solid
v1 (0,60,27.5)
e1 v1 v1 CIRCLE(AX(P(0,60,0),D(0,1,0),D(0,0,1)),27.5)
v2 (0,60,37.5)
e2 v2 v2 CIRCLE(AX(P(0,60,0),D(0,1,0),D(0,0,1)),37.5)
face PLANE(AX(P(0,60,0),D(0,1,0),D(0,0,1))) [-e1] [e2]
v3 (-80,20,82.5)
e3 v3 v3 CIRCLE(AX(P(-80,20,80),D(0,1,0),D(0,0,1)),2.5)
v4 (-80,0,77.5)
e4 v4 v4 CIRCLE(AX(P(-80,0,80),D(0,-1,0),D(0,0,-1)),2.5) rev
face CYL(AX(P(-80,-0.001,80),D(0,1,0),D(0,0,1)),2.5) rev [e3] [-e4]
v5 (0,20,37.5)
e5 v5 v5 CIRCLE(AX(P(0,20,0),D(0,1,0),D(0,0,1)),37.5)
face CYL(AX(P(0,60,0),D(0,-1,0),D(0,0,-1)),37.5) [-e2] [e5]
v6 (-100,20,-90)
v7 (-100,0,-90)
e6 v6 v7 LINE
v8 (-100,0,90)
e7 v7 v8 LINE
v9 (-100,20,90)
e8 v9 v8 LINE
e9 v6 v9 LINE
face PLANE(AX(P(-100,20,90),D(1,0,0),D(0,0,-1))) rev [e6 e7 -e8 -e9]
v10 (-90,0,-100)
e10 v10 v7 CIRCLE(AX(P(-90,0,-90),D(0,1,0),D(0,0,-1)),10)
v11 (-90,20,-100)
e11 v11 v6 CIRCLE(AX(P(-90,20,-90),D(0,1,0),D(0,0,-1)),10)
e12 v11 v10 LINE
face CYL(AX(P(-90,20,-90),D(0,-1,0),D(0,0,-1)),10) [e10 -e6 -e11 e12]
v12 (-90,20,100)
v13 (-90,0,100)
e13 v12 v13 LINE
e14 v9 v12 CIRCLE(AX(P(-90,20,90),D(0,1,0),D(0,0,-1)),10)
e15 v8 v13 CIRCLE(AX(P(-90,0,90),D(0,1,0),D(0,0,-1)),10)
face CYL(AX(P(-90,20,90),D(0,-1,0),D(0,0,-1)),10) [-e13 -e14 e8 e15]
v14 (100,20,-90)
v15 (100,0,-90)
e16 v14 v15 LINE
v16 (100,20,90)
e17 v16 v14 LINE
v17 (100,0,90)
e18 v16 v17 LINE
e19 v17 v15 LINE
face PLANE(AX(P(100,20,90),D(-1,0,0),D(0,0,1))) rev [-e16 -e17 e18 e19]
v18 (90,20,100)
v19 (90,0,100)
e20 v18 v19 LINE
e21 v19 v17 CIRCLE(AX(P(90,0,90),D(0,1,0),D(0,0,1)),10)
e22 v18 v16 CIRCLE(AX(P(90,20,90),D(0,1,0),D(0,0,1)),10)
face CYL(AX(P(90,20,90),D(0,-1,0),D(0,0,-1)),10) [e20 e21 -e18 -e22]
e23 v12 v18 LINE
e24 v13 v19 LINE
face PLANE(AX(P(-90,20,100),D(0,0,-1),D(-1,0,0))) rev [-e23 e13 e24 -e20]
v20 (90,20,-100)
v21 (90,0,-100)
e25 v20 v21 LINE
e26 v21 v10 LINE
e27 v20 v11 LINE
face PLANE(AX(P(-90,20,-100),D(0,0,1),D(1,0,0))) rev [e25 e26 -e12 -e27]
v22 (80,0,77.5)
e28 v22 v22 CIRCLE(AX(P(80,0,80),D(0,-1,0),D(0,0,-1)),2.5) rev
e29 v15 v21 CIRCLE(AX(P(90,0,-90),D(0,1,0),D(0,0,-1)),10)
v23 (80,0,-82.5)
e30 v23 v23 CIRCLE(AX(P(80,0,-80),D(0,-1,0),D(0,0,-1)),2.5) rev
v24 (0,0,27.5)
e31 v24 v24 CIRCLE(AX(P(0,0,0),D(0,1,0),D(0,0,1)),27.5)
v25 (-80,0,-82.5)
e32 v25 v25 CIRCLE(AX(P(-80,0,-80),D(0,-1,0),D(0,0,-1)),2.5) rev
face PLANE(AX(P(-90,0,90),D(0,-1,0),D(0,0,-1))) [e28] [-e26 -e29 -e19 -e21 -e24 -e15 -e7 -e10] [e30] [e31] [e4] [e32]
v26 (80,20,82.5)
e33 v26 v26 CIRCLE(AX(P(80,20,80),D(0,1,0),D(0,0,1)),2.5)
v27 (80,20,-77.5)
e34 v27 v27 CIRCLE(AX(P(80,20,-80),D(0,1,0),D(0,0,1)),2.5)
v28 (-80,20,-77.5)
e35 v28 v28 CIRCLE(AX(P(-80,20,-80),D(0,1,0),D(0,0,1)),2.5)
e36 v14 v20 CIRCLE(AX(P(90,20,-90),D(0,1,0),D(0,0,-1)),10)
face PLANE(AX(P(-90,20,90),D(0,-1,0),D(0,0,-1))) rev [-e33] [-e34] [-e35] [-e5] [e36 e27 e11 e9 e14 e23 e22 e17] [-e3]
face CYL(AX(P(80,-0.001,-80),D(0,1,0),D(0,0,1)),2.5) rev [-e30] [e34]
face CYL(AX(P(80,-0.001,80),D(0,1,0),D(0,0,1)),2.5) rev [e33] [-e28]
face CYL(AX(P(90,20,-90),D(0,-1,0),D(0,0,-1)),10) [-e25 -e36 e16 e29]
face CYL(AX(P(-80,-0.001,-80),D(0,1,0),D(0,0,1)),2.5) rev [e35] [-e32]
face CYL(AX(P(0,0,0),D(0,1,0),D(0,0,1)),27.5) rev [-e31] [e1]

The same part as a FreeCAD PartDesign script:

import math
import FreeCAD as App
import Part
import Sketcher

V = App.Vector

doc = App.newDocument("Part")
params = doc.addObject("Spreadsheet::Sheet", "Params")
for row, (alias, value) in enumerate([
    ("sketch1_radius", "10 mm"),
    ("sketch1_width", "180 mm"),
    ("pad1_length", "20 mm"),
    ("sketch2_diameter", "75 mm"),
    ("pad2_length", "40 mm"),
    ("sketch3_diameter", "5 mm"),
    ("sketch4_diameter", "5 mm"),
    ("sketch5_diameter", "5 mm"),
    ("sketch6_diameter", "5 mm"),
    ("sketch7_diameter", "55 mm"),
], start=1):
    params.set(f"A{row}", alias)
    params.set(f"B{row}", "=" + value)
    params.setAlias(f"B{row}", alias)

body = doc.addObject("PartDesign::Body", "Body")

sketch1 = body.newObject("Sketcher::SketchObject", "Sketch")
sketch1.AttachmentSupport = (doc.getObject("XZ_Plane"), [""])
sketch1.MapMode = "FlatFace"
sketch1.addGeometry(Part.LineSegment(V(-90, 100, 0), V(90, 100, 0)), False)
sketch1.addGeometry(Part.ArcOfCircle(Part.Circle(V(90, 90, 0), V(0, 0, 1), 10), math.radians(0), math.radians(90)), False)
sketch1.addGeometry(Part.LineSegment(V(100, 90, 0), V(100, -90, 0)), False)
sketch1.addGeometry(Part.ArcOfCircle(Part.Circle(V(90, -90, 0), V(0, 0, 1), 10), math.radians(-90), math.radians(0)), False)
sketch1.addGeometry(Part.LineSegment(V(90, -100, 0), V(-90, -100, 0)), False)
sketch1.addGeometry(Part.ArcOfCircle(Part.Circle(V(-90, -90, 0), V(0, 0, 1), 10), math.radians(180), math.radians(270)), False)
sketch1.addGeometry(Part.LineSegment(V(-100, -90, 0), V(-100, 90, 0)), False)
sketch1.addGeometry(Part.ArcOfCircle(Part.Circle(V(-90, 90, 0), V(0, 0, 1), 10), math.radians(90), math.radians(180)), False)
sketch1.addConstraint(Sketcher.Constraint("Tangent", 0, 2, 1, 2))
sketch1.addConstraint(Sketcher.Constraint("Tangent", 1, 1, 2, 1))
sketch1.addConstraint(Sketcher.Constraint("Tangent", 2, 2, 3, 2))
sketch1.addConstraint(Sketcher.Constraint("Tangent", 3, 1, 4, 1))
sketch1.addConstraint(Sketcher.Constraint("Tangent", 4, 2, 5, 2))
sketch1.addConstraint(Sketcher.Constraint("Tangent", 5, 1, 6, 1))
sketch1.addConstraint(Sketcher.Constraint("Tangent", 6, 2, 7, 2))
sketch1.addConstraint(Sketcher.Constraint("Tangent", 7, 1, 0, 1))
sketch1.addConstraint(Sketcher.Constraint("Horizontal", 0))
sketch1.addConstraint(Sketcher.Constraint("Vertical", 2))
sketch1.addConstraint(Sketcher.Constraint("Horizontal", 4))
sketch1.addConstraint(Sketcher.Constraint("Vertical", 6))
sketch1.addConstraint(Sketcher.Constraint("Equal", 1, 3))
sketch1.addConstraint(Sketcher.Constraint("Equal", 3, 5))
sketch1.addConstraint(Sketcher.Constraint("Equal", 5, 7))
sketch1.addConstraint(Sketcher.Constraint("Symmetric", 1, 3, 5, 3, -1, 1))
sketch1.addConstraint(Sketcher.Constraint("Equal", 4, 2))
sketch1.addConstraint(Sketcher.Constraint("Radius", 1, 10.0))
sketch1.addConstraint(Sketcher.Constraint("DistanceX", 0, 1, 0, 2, 180.0))
sketch1.setExpression("Constraints[17]", "Params.sketch1_radius")
sketch1.setExpression("Constraints[18]", "Params.sketch1_width")
pad1 = body.newObject("PartDesign::Pad", "Pad")
pad1.Profile = sketch1
pad1.setExpression("Length", "Params.pad1_length")
pad1.Reversed = True

sketch2 = body.newObject("Sketcher::SketchObject", "Sketch001")
sketch2.AttachmentSupport = (doc.getObject("XZ_Plane"), [""])
sketch2.MapMode = "FlatFace"
sketch2.AttachmentOffset = App.Placement(V(0, 0, -20), App.Rotation())
sketch2.addGeometry(Part.Circle(V(0, 0, 0), V(0, 0, 1), 37.5), False)
sketch2.addConstraint(Sketcher.Constraint("Coincident", 0, 3, -1, 1))
sketch2.addConstraint(Sketcher.Constraint("Diameter", 0, 75.0))
sketch2.setExpression("Constraints[1]", "Params.sketch2_diameter")
pad2 = body.newObject("PartDesign::Pad", "Pad001")
pad2.Profile = sketch2
pad2.setExpression("Length", "Params.pad2_length")
pad2.Reversed = True

sketch3 = body.newObject("Sketcher::SketchObject", "Sketch002")
sketch3.AttachmentSupport = (doc.getObject("XZ_Plane"), [""])
sketch3.MapMode = "FlatFace"
sketch3.AttachmentOffset = App.Placement(V(0, 0, -20), App.Rotation())
sketch3.addGeometry(Part.Circle(V(-80, -80, 0), V(0, 0, 1), 2.5), False)
sketch3.addConstraint(Sketcher.Constraint("Diameter", 0, 5.0))
sketch3.addConstraint(Sketcher.Constraint("DistanceX", 0, 3, -1, 1, 80.0))
sketch3.addConstraint(Sketcher.Constraint("DistanceY", 0, 3, -1, 1, 80.0))
sketch3.setExpression("Constraints[0]", "Params.sketch3_diameter")
pocket1 = body.newObject("PartDesign::Pocket", "Pocket")
pocket1.Profile = sketch3
pocket1.Type = "UpToFirst"
pocket1.Reversed = True

sketch4 = body.newObject("Sketcher::SketchObject", "Sketch003")
sketch4.AttachmentSupport = (doc.getObject("XZ_Plane"), [""])
sketch4.MapMode = "FlatFace"
sketch4.AttachmentOffset = App.Placement(V(0, 0, -20), App.Rotation())
sketch4.addGeometry(Part.Circle(V(80, -80, 0), V(0, 0, 1), 2.5), False)
sketch4.addConstraint(Sketcher.Constraint("Diameter", 0, 5.0))
sketch4.addConstraint(Sketcher.Constraint("DistanceX", -1, 1, 0, 3, 80.0))
sketch4.addConstraint(Sketcher.Constraint("DistanceY", 0, 3, -1, 1, 80.0))
sketch4.setExpression("Constraints[0]", "Params.sketch4_diameter")
pocket2 = body.newObject("PartDesign::Pocket", "Pocket001")
pocket2.Profile = sketch4
pocket2.Type = "UpToFirst"
pocket2.Reversed = True

sketch5 = body.newObject("Sketcher::SketchObject", "Sketch004")
sketch5.AttachmentSupport = (doc.getObject("XZ_Plane"), [""])
sketch5.MapMode = "FlatFace"
sketch5.AttachmentOffset = App.Placement(V(0, 0, -20), App.Rotation())
sketch5.addGeometry(Part.Circle(V(80, 80, 0), V(0, 0, 1), 2.5), False)
sketch5.addConstraint(Sketcher.Constraint("Diameter", 0, 5.0))
sketch5.addConstraint(Sketcher.Constraint("DistanceX", -1, 1, 0, 3, 80.0))
sketch5.addConstraint(Sketcher.Constraint("DistanceY", -1, 1, 0, 3, 80.0))
sketch5.setExpression("Constraints[0]", "Params.sketch5_diameter")
pocket3 = body.newObject("PartDesign::Pocket", "Pocket002")
pocket3.Profile = sketch5
pocket3.Type = "UpToFirst"
pocket3.Reversed = True

sketch6 = body.newObject("Sketcher::SketchObject", "Sketch005")
sketch6.AttachmentSupport = (doc.getObject("XZ_Plane"), [""])
sketch6.MapMode = "FlatFace"
sketch6.AttachmentOffset = App.Placement(V(0, 0, -20), App.Rotation())
sketch6.addGeometry(Part.Circle(V(-80, 80, 0), V(0, 0, 1), 2.5), False)
sketch6.addConstraint(Sketcher.Constraint("Diameter", 0, 5.0))
sketch6.addConstraint(Sketcher.Constraint("DistanceX", 0, 3, -1, 1, 80.0))
sketch6.addConstraint(Sketcher.Constraint("DistanceY", -1, 1, 0, 3, 80.0))
sketch6.setExpression("Constraints[0]", "Params.sketch6_diameter")
pocket4 = body.newObject("PartDesign::Pocket", "Pocket003")
pocket4.Profile = sketch6
pocket4.Type = "UpToFirst"
pocket4.Reversed = True

sketch7 = body.newObject("Sketcher::SketchObject", "Sketch006")
sketch7.AttachmentSupport = (doc.getObject("XZ_Plane"), [""])
sketch7.MapMode = "FlatFace"
sketch7.AttachmentOffset = App.Placement(V(0, 0, -60), App.Rotation())
sketch7.addGeometry(Part.Circle(V(0, 0, 0), V(0, 0, 1), 27.5), False)
sketch7.addConstraint(Sketcher.Constraint("Coincident", 0, 3, -1, 1))
sketch7.addConstraint(Sketcher.Constraint("Diameter", 0, 55.0))
sketch7.setExpression("Constraints[1]", "Params.sketch7_diameter")
pocket5 = body.newObject("PartDesign::Pocket", "Pocket004")
pocket5.Profile = sketch7
pocket5.Type = "ThroughAll"
pocket5.Reversed = True

doc.recompute()
